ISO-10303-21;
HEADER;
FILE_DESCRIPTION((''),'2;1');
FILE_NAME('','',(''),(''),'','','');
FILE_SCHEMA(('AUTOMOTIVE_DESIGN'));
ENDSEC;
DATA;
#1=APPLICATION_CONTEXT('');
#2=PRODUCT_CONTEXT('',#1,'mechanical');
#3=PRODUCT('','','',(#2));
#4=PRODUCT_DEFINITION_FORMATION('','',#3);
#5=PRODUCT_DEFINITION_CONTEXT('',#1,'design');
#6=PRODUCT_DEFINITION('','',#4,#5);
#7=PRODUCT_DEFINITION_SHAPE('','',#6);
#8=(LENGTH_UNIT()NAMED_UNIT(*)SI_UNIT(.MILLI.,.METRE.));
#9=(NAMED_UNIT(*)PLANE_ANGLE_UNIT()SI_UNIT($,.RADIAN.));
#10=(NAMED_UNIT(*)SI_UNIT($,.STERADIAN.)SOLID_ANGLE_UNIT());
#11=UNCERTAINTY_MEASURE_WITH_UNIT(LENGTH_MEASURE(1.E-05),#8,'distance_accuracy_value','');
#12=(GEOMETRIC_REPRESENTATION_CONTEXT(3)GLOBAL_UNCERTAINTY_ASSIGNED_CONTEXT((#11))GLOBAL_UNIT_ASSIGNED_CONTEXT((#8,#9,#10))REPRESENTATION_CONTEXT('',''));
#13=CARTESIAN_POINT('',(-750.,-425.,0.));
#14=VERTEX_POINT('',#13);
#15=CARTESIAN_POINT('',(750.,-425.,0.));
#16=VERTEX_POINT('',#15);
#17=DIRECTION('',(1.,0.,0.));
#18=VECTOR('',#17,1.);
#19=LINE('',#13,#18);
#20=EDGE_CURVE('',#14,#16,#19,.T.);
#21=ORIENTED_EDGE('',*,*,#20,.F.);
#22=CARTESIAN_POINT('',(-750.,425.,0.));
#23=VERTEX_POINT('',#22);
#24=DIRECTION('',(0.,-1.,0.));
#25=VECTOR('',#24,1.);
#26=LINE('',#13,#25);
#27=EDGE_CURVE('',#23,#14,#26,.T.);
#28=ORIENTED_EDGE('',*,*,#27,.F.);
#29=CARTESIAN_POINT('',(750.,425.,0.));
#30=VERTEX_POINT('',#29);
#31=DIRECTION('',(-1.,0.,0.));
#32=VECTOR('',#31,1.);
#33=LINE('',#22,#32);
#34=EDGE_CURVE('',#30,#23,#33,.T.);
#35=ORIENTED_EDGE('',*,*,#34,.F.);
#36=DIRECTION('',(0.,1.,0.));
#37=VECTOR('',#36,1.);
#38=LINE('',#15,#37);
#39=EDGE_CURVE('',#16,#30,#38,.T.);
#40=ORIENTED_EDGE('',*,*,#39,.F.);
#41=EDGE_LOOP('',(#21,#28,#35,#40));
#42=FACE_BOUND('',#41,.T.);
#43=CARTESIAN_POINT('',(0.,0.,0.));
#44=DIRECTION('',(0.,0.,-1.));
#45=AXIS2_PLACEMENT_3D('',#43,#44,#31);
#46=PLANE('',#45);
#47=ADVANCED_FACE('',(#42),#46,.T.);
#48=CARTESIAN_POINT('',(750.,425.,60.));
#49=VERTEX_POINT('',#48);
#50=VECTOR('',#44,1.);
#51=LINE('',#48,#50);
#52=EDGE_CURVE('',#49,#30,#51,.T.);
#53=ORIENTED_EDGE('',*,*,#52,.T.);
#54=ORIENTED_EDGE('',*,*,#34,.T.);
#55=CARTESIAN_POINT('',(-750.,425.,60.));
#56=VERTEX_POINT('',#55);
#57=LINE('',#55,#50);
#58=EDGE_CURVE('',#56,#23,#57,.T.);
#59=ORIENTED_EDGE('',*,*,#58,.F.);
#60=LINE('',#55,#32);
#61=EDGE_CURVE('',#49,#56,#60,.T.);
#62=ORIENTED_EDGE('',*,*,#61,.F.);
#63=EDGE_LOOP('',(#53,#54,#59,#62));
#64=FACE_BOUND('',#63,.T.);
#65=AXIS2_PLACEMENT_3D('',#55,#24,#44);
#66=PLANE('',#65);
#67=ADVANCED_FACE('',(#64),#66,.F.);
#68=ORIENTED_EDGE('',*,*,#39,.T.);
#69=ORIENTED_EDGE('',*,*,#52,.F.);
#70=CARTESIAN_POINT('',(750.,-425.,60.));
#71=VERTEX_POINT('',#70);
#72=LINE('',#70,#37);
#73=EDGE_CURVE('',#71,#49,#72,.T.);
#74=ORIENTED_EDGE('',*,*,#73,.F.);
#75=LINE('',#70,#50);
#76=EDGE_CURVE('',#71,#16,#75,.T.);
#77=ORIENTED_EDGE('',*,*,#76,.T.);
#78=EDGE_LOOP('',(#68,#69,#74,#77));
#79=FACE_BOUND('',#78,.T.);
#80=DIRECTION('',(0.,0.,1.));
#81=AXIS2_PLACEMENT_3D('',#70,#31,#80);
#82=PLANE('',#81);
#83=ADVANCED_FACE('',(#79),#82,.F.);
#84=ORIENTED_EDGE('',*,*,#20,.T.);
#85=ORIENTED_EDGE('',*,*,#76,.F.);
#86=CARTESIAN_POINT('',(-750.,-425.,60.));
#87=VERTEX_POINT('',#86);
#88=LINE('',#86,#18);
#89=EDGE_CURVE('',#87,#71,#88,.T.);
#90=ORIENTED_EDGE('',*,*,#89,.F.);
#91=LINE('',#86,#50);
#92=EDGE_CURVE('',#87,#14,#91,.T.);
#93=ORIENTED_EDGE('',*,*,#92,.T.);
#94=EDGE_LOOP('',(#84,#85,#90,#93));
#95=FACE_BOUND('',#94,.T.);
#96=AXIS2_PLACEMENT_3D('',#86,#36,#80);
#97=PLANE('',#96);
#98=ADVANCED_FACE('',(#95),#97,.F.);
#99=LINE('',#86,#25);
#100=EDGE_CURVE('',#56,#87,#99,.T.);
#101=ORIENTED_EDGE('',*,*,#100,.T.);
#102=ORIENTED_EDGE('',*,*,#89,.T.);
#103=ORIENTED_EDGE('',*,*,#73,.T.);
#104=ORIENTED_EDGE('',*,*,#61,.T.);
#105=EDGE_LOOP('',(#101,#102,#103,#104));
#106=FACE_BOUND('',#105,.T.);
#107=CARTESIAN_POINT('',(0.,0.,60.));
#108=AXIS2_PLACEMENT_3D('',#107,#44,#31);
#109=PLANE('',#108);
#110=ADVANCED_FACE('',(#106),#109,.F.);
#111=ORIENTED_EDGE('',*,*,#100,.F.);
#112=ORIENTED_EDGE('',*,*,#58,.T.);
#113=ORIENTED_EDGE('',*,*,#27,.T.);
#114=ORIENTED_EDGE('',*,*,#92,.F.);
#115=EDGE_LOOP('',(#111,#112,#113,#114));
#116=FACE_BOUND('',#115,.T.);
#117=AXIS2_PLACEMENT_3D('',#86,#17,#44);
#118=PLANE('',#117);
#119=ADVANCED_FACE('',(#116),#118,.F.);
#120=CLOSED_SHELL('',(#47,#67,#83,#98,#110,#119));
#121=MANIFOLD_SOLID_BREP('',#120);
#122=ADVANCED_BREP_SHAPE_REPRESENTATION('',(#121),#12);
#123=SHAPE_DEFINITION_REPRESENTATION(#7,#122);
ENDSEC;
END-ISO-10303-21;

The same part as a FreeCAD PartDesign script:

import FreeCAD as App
import Part
import Sketcher

V = App.Vector
Q = App.Units.Quantity

doc = App.newDocument("Part")
params = doc.addObject("Spreadsheet::Sheet", "Params")
for row, (alias, value) in enumerate([
    ("sketch1_width", "1500 mm"),
    ("sketch1_height", "850 mm"),
    ("pad1_length", "60 mm"),
], start=1):
    params.set(f"A{row}", alias)
    params.set(f"B{row}", "=" + value)
    params.setAlias(f"B{row}", alias)

body = doc.addObject("PartDesign::Body", "Body")

sketch1 = body.newObject("Sketcher::SketchObject", "Sketch")
sketch1.AttachmentSupport = (doc.getObject("XY_Plane"), [""])
sketch1.MapMode = "FlatFace"
sketch1.addGeometry(Part.LineSegment(V(-750, 425, 0), V(-750, -425, 0)), False)
sketch1.addGeometry(Part.LineSegment(V(-750, -425, 0), V(750, -425, 0)), False)
sketch1.addGeometry(Part.LineSegment(V(750, -425, 0), V(750, 425, 0)), False)
sketch1.addGeometry(Part.LineSegment(V(750, 425, 0), V(-750, 425, 0)), False)
sketch1.addConstraint(Sketcher.Constraint("Coincident", 0, 2, 1, 1))
sketch1.addConstraint(Sketcher.Constraint("Coincident", 1, 2, 2, 1))
sketch1.addConstraint(Sketcher.Constraint("Coincident", 2, 2, 3, 1))
sketch1.addConstraint(Sketcher.Constraint("Coincident", 3, 2, 0, 1))
sketch1.addConstraint(Sketcher.Constraint("Vertical", 0))
sketch1.addConstraint(Sketcher.Constraint("Horizontal", 1))
sketch1.addConstraint(Sketcher.Constraint("Vertical", 2))
sketch1.addConstraint(Sketcher.Constraint("Horizontal", 3))
sketch1.addConstraint(Sketcher.Constraint("Symmetric", 0, 2, 2, 2, -1, 1))
sketch1.addConstraint(Sketcher.Constraint("DistanceX", 1, 1, 1, 2, Q("1500 mm")))
sketch1.addConstraint(Sketcher.Constraint("DistanceY", 0, 2, 0, 1, Q("850 mm")))
sketch1.setExpression("Constraints[9]", "Params.sketch1_width")
sketch1.setExpression("Constraints[10]", "Params.sketch1_height")
pad1 = body.newObject("PartDesign::Pad", "Pad")
pad1.Profile = sketch1
pad1.setExpression("Length", "Params.pad1_length")

doc.recompute()
